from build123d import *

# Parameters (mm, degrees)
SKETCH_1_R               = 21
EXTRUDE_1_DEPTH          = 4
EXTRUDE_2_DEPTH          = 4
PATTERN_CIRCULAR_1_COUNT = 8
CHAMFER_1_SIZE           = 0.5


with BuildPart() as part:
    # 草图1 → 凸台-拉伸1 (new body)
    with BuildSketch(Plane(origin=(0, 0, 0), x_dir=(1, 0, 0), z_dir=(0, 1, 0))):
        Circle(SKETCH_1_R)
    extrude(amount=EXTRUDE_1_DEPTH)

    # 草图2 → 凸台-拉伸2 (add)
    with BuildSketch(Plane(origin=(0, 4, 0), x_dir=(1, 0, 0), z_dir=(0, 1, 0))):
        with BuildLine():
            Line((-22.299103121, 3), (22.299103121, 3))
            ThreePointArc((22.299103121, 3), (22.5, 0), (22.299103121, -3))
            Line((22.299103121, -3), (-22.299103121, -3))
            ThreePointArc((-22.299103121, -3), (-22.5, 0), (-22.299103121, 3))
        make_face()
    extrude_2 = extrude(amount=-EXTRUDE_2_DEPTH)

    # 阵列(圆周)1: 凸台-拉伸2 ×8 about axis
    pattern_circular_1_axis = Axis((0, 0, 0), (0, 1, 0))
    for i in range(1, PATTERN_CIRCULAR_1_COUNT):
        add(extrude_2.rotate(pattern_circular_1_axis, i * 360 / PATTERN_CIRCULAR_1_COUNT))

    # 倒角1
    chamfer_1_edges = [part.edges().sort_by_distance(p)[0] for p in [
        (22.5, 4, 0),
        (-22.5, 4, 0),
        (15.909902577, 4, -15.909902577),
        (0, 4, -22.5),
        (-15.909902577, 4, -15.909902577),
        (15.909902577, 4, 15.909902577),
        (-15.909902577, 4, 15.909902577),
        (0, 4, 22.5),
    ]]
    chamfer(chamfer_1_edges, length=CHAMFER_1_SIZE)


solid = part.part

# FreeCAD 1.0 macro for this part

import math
import FreeCAD as App
import Part
import Sketcher

V = App.Vector
Q = App.Units.Quantity


def edges_at(feature, points):
    """Names of the edges that pass closest to the given points."""
    edges = feature.Shape.Edges
    near = lambda p: min(range(len(edges)), key=lambda i: edges[i].distToShape(Part.Vertex(*p))[0])
    return sorted({f"Edge{near(p) + 1}" for p in points})

doc = App.newDocument("Part")
body = doc.addObject("PartDesign::Body", "Body")

# Sketch on XZ plane
sketch1 = doc.addObject("Sketcher::SketchObject", "Sketch")
body.addObject(sketch1)
sketch1.AttachmentSupport = (doc.XZ_Plane, [""])
sketch1.MapMode = "FlatFace"
sketch1.addGeometry(Part.Circle(V(0, 0, 0), V(0, 0, 1), 21), False)
sketch1.addConstraint(Sketcher.Constraint("Coincident", 0, 3, -1, 1))
sketch1.addConstraint(Sketcher.Constraint("Diameter", 0, Q("42 mm")))
pad1 = doc.addObject("PartDesign::Pad", "Pad")
body.addObject(pad1)
pad1.Profile = sketch1
pad1.Length = 4
pad1.Reversed = True

# Sketch on XZ plane
sketch2 = doc.addObject("Sketcher::SketchObject", "Sketch001")
body.addObject(sketch2)
sketch2.AttachmentSupport = (doc.XZ_Plane, [""])
sketch2.MapMode = "FlatFace"
sketch2.AttachmentOffset = App.Placement(V(0, 0, -4), App.Rotation())
sketch2.addGeometry(Part.LineSegment(V(22.299103, -3, 0), V(-22.299103, -3, 0)), False)
sketch2.addGeometry(Part.ArcOfCircle(Part.Circle(V(0, 0, 0), V(0, 0, 1), 22.5), math.radians(172.337744), math.radians(187.662256)), False)
sketch2.addGeometry(Part.LineSegment(V(-22.299103, 3, 0), V(22.299103, 3, 0)), False)
sketch2.addGeometry(Part.ArcOfCircle(Part.Circle(V(0, 0, 0), V(0, 0, 1), 22.5), math.radians(-7.662256), math.radians(7.662256)), False)
sketch2.addConstraint(Sketcher.Constraint("Coincident", 0, 2, 1, 2))
sketch2.addConstraint(Sketcher.Constraint("Coincident", 1, 1, 2, 1))
sketch2.addConstraint(Sketcher.Constraint("Coincident", 2, 2, 3, 2))
sketch2.addConstraint(Sketcher.Constraint("Coincident", 3, 1, 0, 1))
sketch2.addConstraint(Sketcher.Constraint("Horizontal", 0))
sketch2.addConstraint(Sketcher.Constraint("Horizontal", 2))
sketch2.addConstraint(Sketcher.Constraint("Coincident", 1, 3, -1, 1))
sketch2.addConstraint(Sketcher.Constraint("Coincident", 3, 3, -1, 1))
sketch2.addConstraint(Sketcher.Constraint("Equal", 1, 3))
sketch2.addConstraint(Sketcher.Constraint("Vertical", 0, 2, 1, 1))
sketch2.addConstraint(Sketcher.Constraint("Radius", 1, Q("22.5 mm")))
sketch2.addConstraint(Sketcher.Constraint("DistanceY", 0, 2, -1, 1, Q("3 mm")))
pad2 = doc.addObject("PartDesign::Pad", "Pad001")
body.addObject(pad2)
pad2.Profile = sketch2
pad2.Length = 4
doc.recompute()

polarpattern = doc.addObject("PartDesign::PolarPattern", "PolarPattern")
body.addObject(polarpattern)
polarpattern.Originals = [pad2]
polarpattern.Axis = (doc.Y_Axis, [""])
polarpattern.Angle = 360
polarpattern.Occurrences = 8
body.Tip = polarpattern
doc.recompute()

chamfer = doc.addObject("PartDesign::Chamfer", "Chamfer")
body.addObject(chamfer)
chamfer.Base = (polarpattern, edges_at(polarpattern, [
    (22.5, 4, 0),
    (-22.5, 4, 0),
    (15.91, 4, -15.91),
    (0, 4, -22.5),
    (-15.91, 4, -15.91),
    (15.91, 4, 15.91),
    (-15.91, 4, 15.91),
    (0, 4, 22.5),
]))
chamfer.Size = 0.5

doc.recompute()
